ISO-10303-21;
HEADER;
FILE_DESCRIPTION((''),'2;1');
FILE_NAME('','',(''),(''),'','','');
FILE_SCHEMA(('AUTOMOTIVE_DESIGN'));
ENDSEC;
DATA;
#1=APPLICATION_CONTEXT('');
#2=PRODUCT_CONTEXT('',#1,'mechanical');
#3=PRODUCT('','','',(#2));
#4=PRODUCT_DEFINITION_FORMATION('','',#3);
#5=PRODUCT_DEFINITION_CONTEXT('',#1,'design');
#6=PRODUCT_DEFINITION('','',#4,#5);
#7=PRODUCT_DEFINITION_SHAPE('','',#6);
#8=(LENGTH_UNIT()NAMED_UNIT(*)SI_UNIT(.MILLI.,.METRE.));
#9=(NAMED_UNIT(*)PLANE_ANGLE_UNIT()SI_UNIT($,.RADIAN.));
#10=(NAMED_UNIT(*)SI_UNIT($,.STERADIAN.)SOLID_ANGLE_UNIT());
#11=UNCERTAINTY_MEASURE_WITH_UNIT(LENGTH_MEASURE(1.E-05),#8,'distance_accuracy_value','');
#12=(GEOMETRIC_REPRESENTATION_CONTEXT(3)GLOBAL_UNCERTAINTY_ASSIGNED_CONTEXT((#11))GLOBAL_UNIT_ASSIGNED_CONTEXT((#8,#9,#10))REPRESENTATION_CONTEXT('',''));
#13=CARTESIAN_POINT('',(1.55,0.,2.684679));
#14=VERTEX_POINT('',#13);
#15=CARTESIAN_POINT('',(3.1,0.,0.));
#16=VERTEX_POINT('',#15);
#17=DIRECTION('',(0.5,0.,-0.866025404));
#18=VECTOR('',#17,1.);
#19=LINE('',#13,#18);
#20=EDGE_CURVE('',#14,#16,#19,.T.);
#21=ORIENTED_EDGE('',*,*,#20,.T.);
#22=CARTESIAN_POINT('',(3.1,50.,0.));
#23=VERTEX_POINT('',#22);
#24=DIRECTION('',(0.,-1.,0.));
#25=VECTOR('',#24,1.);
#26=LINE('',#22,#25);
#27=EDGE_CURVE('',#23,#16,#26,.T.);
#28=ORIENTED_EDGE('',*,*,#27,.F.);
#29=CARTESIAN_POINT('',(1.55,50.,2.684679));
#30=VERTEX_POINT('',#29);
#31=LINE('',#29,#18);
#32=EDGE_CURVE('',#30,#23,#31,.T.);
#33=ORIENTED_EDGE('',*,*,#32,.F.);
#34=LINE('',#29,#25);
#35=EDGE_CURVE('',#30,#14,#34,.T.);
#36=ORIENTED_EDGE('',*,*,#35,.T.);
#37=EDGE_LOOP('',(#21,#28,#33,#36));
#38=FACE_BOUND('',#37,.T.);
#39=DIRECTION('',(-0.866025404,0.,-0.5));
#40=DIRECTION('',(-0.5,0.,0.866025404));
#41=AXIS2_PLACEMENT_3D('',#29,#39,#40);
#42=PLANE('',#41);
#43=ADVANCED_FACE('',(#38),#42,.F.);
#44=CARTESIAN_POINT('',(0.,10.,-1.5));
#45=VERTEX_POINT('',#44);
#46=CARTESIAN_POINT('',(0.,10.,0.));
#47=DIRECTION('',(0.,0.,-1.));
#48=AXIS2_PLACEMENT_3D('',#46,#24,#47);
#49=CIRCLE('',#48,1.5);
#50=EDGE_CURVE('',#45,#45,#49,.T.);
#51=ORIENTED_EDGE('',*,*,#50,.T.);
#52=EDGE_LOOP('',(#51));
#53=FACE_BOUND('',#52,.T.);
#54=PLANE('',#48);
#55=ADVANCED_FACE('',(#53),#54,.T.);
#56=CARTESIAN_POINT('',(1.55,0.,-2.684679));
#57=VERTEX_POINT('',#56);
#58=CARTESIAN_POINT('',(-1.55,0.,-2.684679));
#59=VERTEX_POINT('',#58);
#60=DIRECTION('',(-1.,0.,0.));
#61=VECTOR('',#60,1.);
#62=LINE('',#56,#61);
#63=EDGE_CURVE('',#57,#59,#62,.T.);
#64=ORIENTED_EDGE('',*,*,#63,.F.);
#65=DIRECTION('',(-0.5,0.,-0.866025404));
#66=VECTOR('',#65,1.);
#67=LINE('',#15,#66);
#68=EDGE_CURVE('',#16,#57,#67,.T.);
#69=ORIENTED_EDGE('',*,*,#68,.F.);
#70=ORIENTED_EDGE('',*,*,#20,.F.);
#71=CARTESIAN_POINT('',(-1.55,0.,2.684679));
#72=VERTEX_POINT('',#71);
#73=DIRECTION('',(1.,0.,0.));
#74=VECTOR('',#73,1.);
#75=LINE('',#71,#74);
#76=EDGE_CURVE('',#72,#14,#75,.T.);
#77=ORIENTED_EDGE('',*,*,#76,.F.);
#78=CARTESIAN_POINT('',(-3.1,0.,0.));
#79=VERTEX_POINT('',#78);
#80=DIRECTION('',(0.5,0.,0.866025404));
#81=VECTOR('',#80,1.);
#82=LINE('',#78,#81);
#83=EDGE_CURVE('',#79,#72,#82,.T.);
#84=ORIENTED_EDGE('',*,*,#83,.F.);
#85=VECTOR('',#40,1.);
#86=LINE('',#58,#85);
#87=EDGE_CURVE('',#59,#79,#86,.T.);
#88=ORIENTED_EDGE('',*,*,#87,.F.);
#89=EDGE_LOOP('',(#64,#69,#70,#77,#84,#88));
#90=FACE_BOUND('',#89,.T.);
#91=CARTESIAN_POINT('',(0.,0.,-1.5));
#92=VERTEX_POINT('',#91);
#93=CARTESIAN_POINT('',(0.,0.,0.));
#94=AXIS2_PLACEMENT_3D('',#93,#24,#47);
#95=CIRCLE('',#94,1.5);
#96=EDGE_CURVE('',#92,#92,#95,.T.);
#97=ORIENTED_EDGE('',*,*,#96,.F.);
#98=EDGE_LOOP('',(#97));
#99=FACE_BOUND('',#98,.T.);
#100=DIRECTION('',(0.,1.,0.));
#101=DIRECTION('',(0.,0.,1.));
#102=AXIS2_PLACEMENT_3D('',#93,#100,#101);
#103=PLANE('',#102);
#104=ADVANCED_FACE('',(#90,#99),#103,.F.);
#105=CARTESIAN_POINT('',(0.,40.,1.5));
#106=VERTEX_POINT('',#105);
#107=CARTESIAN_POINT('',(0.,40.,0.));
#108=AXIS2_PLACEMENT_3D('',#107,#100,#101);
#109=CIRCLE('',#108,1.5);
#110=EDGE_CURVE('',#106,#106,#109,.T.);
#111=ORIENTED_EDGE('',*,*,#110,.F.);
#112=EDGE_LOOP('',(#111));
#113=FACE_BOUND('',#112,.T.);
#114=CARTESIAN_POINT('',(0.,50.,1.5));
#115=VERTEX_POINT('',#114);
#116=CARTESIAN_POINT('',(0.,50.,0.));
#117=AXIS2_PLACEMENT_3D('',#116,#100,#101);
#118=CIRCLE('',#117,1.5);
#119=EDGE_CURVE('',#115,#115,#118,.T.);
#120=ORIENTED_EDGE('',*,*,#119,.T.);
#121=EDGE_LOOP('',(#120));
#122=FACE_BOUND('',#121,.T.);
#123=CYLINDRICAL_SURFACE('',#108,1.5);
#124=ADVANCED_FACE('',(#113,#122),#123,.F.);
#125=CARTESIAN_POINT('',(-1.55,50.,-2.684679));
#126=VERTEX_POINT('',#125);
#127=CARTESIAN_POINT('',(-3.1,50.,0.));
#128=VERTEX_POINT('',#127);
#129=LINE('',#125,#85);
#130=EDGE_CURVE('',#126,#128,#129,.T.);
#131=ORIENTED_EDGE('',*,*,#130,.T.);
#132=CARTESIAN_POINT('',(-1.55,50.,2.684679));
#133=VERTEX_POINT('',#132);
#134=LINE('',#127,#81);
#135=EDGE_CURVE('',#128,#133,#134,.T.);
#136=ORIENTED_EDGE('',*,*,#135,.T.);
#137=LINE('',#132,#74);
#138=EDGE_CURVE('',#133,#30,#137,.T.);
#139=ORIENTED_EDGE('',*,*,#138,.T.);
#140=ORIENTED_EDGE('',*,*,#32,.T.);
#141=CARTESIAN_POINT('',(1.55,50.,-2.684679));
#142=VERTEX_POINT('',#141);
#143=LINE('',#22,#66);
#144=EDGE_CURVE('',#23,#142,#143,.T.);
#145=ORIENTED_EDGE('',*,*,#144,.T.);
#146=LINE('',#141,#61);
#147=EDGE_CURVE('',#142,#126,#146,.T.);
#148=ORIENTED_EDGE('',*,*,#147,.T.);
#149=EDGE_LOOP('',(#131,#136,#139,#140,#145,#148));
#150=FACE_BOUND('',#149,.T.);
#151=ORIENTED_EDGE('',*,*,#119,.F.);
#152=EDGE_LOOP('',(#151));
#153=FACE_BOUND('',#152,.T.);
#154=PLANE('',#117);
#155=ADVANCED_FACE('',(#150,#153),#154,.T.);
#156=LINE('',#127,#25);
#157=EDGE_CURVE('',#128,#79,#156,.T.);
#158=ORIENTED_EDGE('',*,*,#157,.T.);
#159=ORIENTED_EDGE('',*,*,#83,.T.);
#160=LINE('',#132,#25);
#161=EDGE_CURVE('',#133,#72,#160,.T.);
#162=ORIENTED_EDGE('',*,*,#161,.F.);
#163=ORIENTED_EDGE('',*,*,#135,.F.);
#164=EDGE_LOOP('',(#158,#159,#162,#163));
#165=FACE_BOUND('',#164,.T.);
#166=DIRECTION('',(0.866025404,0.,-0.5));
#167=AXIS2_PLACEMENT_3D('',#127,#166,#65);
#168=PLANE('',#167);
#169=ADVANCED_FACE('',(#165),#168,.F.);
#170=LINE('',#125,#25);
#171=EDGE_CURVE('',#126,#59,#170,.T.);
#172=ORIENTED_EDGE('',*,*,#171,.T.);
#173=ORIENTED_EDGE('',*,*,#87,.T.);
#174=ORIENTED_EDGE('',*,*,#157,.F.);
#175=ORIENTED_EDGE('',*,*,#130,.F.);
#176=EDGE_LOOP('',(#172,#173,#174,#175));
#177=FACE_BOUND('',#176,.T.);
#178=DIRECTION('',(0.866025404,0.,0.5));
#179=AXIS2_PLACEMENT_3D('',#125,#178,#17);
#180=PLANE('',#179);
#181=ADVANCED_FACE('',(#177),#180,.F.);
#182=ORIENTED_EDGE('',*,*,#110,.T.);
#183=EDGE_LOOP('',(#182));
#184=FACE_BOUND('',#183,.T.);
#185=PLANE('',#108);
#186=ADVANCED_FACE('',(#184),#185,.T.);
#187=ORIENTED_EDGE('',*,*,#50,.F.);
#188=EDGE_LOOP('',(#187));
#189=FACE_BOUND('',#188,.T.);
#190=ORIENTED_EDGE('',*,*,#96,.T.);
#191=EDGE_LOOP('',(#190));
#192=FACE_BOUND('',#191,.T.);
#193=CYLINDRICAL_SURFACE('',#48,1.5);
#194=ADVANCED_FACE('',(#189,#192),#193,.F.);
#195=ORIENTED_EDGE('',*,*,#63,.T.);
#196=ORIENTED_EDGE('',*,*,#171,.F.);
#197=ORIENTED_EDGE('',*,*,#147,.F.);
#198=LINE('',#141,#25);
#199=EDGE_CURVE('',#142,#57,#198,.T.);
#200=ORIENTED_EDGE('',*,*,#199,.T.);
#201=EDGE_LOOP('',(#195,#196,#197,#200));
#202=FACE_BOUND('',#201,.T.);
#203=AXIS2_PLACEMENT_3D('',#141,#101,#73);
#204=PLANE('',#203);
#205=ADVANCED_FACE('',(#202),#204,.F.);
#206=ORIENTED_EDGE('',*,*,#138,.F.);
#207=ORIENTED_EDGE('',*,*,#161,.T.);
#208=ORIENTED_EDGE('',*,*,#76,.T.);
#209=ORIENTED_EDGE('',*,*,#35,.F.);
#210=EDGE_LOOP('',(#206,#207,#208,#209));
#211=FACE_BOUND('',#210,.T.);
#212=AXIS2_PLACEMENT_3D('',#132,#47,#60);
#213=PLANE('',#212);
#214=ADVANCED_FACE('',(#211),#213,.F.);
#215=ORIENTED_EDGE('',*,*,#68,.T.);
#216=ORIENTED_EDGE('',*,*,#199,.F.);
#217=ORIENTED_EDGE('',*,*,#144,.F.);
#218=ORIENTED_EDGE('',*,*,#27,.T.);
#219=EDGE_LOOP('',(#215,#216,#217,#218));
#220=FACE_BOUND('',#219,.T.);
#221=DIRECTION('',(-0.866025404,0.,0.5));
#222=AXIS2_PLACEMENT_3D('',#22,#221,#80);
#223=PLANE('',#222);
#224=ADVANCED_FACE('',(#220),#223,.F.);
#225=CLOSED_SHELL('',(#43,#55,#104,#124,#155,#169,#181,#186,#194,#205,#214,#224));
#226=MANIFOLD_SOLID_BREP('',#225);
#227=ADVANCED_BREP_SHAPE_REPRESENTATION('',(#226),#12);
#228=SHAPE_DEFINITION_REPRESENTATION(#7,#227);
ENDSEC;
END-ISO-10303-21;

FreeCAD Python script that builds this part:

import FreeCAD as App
import Part
import Sketcher
Q = App.Units.Quantity


def add_polygon(sketch, points):
    """Adds a closed chain of lines whose ends are joined by coincident constraints."""
    first, n = sketch.GeometryCount, len(points)
    for a, b in zip(points, points[1:] + points[:1]):
        sketch.addGeometry(Part.LineSegment(App.Vector(*a, 0), App.Vector(*b, 0)), False)
    for i in range(n):
        sketch.addConstraint(Sketcher.Constraint("Coincident", first + i, 2, first + (i + 1) % n, 1))

doc = App.newDocument("Part")
params = doc.addObject("Spreadsheet::Sheet", "Params")
for row, (alias, value) in enumerate([
    ("sketch1_width", "3.1 mm"),
    ("sketch1_length", "3.1 mm"),
    ("pad1_length", "50 mm"),
    ("sketch2_diameter", "3 mm"),
    ("pocket1_length", "10 mm"),
    ("sketch3_diameter", "3 mm"),
    ("pocket2_length", "10 mm"),
], start=1):
    params.set(f"A{row}", alias)
    params.set(f"B{row}", "=" + value)
    params.setAlias(f"B{row}", alias)

body = doc.addObject("PartDesign::Body", "Body")

# Sketch on XZ plane
sketch1 = body.newObject("Sketcher::SketchObject", "Sketch")
sketch1.AttachmentSupport = (doc.getObject("XZ_Plane"), [""])
sketch1.MapMode = "FlatFace"
add_polygon(sketch1, [(3.1, 0), (1.6, -2.7), (-1.6, -2.7), (-3.1, 0), (-1.6, 2.7), (1.6, 2.7)])  # lines 0-5
sketch1.addConstraint([
    Sketcher.Constraint("Horizontal", 1),
    Sketcher.Constraint("Horizontal", 4),
    Sketcher.Constraint("Symmetric", 0, 2, 3, 2, -1, 1),
    Sketcher.Constraint("Symmetric", 2, 2, 5, 2, -1, 1),
    Sketcher.Constraint("PointOnObject", 2, 2, -1),
    Sketcher.Constraint("Parallel", 2, 5),
    Sketcher.Constraint("Vertical", 1, 2, 3, 2),
    Sketcher.Constraint("Angle", 0, Q("-120 deg")),
    Sketcher.Constraint("DistanceX", 1, 2, 1, 1, 3.1),
    Sketcher.Constraint("Distance", 0, 3.1),
])
sketch1.setExpression("Constraints[14]", "Params.sketch1_width")
sketch1.setExpression("Constraints[15]", "Params.sketch1_length")
pad1 = body.newObject("PartDesign::Pad", "Pad")
pad1.Profile = sketch1
pad1.setExpression("Length", "Params.pad1_length")
pad1.Reversed = True

# Sketch on XZ plane
sketch2 = body.newObject("Sketcher::SketchObject", "Sketch001")
sketch2.AttachmentSupport = (doc.getObject("XZ_Plane"), [""])
sketch2.MapMode = "FlatFace"
sketch2.AttachmentOffset = App.Placement(App.Vector(0, 0, -50), App.Rotation())
sketch2.addGeometry(Part.Circle(App.Vector(0, 0, 0), App.Vector(0, 0, 1), 1.5), False)
sketch2.addConstraint([
    Sketcher.Constraint("Coincident", 0, 3, -1, 1),
    Sketcher.Constraint("Diameter", 0, 3.0),
])
sketch2.setExpression("Constraints[1]", "Params.sketch2_diameter")
pocket1 = body.newObject("PartDesign::Pocket", "Pocket")
pocket1.Profile = sketch2
pocket1.setExpression("Length", "Params.pocket1_length")
pocket1.Reversed = True

# Sketch on XZ plane
sketch3 = body.newObject("Sketcher::SketchObject", "Sketch002")
sketch3.AttachmentSupport = (doc.getObject("XZ_Plane"), [""])
sketch3.MapMode = "FlatFace"
sketch3.AttachmentOffset = App.Placement(App.Vector(0, 0, -10), App.Rotation())
sketch3.addGeometry(Part.Circle(App.Vector(0, 0, 0), App.Vector(0, 0, 1), 1.5), False)
sketch3.addConstraint([
    Sketcher.Constraint("Coincident", 0, 3, -1, 1),
    Sketcher.Constraint("Diameter", 0, 3.0),
])
sketch3.setExpression("Constraints[1]", "Params.sketch3_diameter")
pocket2 = body.newObject("PartDesign::Pocket", "Pocket001")
pocket2.Profile = sketch3
pocket2.setExpression("Length", "Params.pocket2_length")
pocket2.Reversed = True

doc.recompute()
